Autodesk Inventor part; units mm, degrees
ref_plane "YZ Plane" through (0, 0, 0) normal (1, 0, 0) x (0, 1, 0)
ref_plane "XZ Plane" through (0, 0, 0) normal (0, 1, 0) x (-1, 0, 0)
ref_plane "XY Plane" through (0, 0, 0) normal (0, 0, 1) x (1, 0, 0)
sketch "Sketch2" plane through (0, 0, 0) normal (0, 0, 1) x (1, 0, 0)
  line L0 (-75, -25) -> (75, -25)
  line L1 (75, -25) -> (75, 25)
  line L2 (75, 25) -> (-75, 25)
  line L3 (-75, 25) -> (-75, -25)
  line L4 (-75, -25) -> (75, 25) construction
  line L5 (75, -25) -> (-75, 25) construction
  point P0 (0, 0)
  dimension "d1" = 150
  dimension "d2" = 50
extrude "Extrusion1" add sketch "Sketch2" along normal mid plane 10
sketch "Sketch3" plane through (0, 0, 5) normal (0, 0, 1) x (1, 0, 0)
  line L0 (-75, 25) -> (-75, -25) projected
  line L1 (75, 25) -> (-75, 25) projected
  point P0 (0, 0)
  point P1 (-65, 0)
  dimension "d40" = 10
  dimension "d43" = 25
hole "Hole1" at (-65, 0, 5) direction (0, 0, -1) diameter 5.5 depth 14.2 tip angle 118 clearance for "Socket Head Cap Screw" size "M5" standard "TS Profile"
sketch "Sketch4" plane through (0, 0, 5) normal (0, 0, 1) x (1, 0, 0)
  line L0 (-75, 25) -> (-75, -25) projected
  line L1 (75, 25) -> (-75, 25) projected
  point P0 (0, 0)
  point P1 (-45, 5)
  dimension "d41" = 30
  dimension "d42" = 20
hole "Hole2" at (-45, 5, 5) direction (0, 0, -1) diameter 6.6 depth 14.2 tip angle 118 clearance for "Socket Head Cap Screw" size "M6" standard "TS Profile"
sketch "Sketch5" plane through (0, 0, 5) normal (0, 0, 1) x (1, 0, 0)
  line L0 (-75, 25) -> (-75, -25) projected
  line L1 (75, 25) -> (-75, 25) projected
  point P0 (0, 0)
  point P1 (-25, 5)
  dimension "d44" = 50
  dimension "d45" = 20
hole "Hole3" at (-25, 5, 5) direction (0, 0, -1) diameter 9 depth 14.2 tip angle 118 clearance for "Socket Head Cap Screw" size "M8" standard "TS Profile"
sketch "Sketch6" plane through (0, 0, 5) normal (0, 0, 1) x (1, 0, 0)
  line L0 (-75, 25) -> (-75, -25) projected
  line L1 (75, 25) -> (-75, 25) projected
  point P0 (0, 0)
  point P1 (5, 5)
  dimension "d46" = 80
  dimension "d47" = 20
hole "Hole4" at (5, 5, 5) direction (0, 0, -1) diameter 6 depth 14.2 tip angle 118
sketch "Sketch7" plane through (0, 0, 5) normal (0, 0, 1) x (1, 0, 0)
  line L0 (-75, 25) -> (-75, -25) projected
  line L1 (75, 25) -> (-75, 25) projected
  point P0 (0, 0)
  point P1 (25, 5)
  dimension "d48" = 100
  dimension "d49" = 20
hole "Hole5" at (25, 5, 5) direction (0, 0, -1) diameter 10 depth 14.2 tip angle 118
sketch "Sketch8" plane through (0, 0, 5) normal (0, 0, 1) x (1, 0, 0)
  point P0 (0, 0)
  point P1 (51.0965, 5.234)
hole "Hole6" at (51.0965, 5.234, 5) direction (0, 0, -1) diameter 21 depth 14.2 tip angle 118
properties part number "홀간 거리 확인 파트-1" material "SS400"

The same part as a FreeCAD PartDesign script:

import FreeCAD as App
import Part
import Sketcher
Q = App.Units.Quantity


def add_polygon(sketch, points):
    """Adds a closed chain of lines whose ends are joined by coincident constraints."""
    first, n = sketch.GeometryCount, len(points)
    for a, b in zip(points, points[1:] + points[:1]):
        sketch.addGeometry(Part.LineSegment(App.Vector(*a, 0), App.Vector(*b, 0)), False)
    for i in range(n):
        sketch.addConstraint(Sketcher.Constraint("Coincident", first + i, 2, first + (i + 1) % n, 1))

doc = App.newDocument("Part")
body = doc.addObject("PartDesign::Body", "Body")

# Sketch on XY plane
sketch1 = body.newObject("Sketcher::SketchObject", "Sketch")
sketch1.AttachmentSupport = (doc.getObject("XY_Plane"), [""])
sketch1.MapMode = "FlatFace"
add_polygon(sketch1, [(-75, 25), (-75, -25), (75, -25), (75, 25)])  # lines 0-3
sketch1.addConstraint(Sketcher.Constraint("Vertical", 0))
sketch1.addConstraint(Sketcher.Constraint("Horizontal", 1))
sketch1.addConstraint(Sketcher.Constraint("Vertical", 2))
sketch1.addConstraint(Sketcher.Constraint("Horizontal", 3))
sketch1.addConstraint(Sketcher.Constraint("Symmetric", 0, 2, 2, 2, -1, 1))
sketch1.addConstraint(Sketcher.Constraint("DistanceX", 1, 1, 1, 2, Q("150 mm")))
sketch1.addConstraint(Sketcher.Constraint("DistanceY", 0, 2, 0, 1, Q("50 mm")))
pad1 = body.newObject("PartDesign::Pad", "Pad")
pad1.Profile = sketch1
pad1.Length = 10
pad1.Midplane = True

# Sketch on XY plane
sketch2 = body.newObject("Sketcher::SketchObject", "Sketch001")
sketch2.AttachmentSupport = (doc.getObject("XY_Plane"), [""])
sketch2.MapMode = "FlatFace"
sketch2.AttachmentOffset = App.Placement(App.Vector(0, 0, 5), App.Rotation())
sketch2.addGeometry(Part.Circle(App.Vector(-65, 0, 0), App.Vector(0, 0, 1), 2.8), False)
sketch2.addConstraint(Sketcher.Constraint("PointOnObject", 0, 3, -1))
sketch2.addConstraint(Sketcher.Constraint("Diameter", 0, Q("5.5 mm")))
sketch2.addConstraint(Sketcher.Constraint("DistanceX", 0, 3, -1, 1, Q("65 mm")))
doc.recompute()
hole = body.newObject("PartDesign::Hole", "Hole")
hole.Profile = sketch2
hole.ThreadType = "None"
hole.Diameter = 5.5
hole.DepthType = "Dimension"
hole.Depth = 14.2
hole.DrillPoint = "Angled"
hole.DrillPointAngle = 118

# Sketch on XY plane
sketch3 = body.newObject("Sketcher::SketchObject", "Sketch002")
sketch3.AttachmentSupport = (doc.getObject("XY_Plane"), [""])
sketch3.MapMode = "FlatFace"
sketch3.AttachmentOffset = App.Placement(App.Vector(0, 0, 5), App.Rotation())
sketch3.addGeometry(Part.Circle(App.Vector(-45, 5, 0), App.Vector(0, 0, 1), 3.3), False)
sketch3.addConstraint(Sketcher.Constraint("Diameter", 0, Q("6.6 mm")))
sketch3.addConstraint(Sketcher.Constraint("DistanceX", 0, 3, -1, 1, Q("45 mm")))
sketch3.addConstraint(Sketcher.Constraint("DistanceY", -1, 1, 0, 3, Q("5 mm")))
doc.recompute()
hole2 = body.newObject("PartDesign::Hole", "Hole001")
hole2.Profile = sketch3
hole2.ThreadType = "None"
hole2.Diameter = 6.6
hole2.DepthType = "Dimension"
hole2.Depth = 14.2
hole2.DrillPoint = "Angled"
hole2.DrillPointAngle = 118

# Sketch on XY plane
sketch4 = body.newObject("Sketcher::SketchObject", "Sketch003")
sketch4.AttachmentSupport = (doc.getObject("XY_Plane"), [""])
sketch4.MapMode = "FlatFace"
sketch4.AttachmentOffset = App.Placement(App.Vector(0, 0, 5), App.Rotation())
sketch4.addGeometry(Part.Circle(App.Vector(-25, 5, 0), App.Vector(0, 0, 1), 4.5), False)
sketch4.addConstraint(Sketcher.Constraint("Diameter", 0, Q("9 mm")))
sketch4.addConstraint(Sketcher.Constraint("DistanceX", 0, 3, -1, 1, Q("25 mm")))
sketch4.addConstraint(Sketcher.Constraint("DistanceY", -1, 1, 0, 3, Q("5 mm")))
doc.recompute()
hole3 = body.newObject("PartDesign::Hole", "Hole002")
hole3.Profile = sketch4
hole3.ThreadType = "None"
hole3.Diameter = 9
hole3.DepthType = "Dimension"
hole3.Depth = 14.2
hole3.DrillPoint = "Angled"
hole3.DrillPointAngle = 118

# Sketch on XY plane
sketch5 = body.newObject("Sketcher::SketchObject", "Sketch004")
sketch5.AttachmentSupport = (doc.getObject("XY_Plane"), [""])
sketch5.MapMode = "FlatFace"
sketch5.AttachmentOffset = App.Placement(App.Vector(0, 0, 5), App.Rotation())
sketch5.addGeometry(Part.Circle(App.Vector(5, 5, 0), App.Vector(0, 0, 1), 3), False)
sketch5.addConstraint(Sketcher.Constraint("Diameter", 0, Q("6 mm")))
sketch5.addConstraint(Sketcher.Constraint("DistanceX", -1, 1, 0, 3, Q("5 mm")))
sketch5.addConstraint(Sketcher.Constraint("DistanceY", -1, 1, 0, 3, Q("5 mm")))
doc.recompute()
hole4 = body.newObject("PartDesign::Hole", "Hole003")
hole4.Profile = sketch5
hole4.ThreadType = "None"
hole4.Diameter = 6
hole4.DepthType = "Dimension"
hole4.Depth = 14.2
hole4.DrillPoint = "Angled"
hole4.DrillPointAngle = 118

# Sketch on XY plane
sketch6 = body.newObject("Sketcher::SketchObject", "Sketch005")
sketch6.AttachmentSupport = (doc.getObject("XY_Plane"), [""])
sketch6.MapMode = "FlatFace"
sketch6.AttachmentOffset = App.Placement(App.Vector(0, 0, 5), App.Rotation())
sketch6.addGeometry(Part.Circle(App.Vector(25, 5, 0), App.Vector(0, 0, 1), 5), False)
sketch6.addConstraint(Sketcher.Constraint("Diameter", 0, Q("10 mm")))
sketch6.addConstraint(Sketcher.Constraint("DistanceX", -1, 1, 0, 3, Q("25 mm")))
sketch6.addConstraint(Sketcher.Constraint("DistanceY", -1, 1, 0, 3, Q("5 mm")))
doc.recompute()
hole5 = body.newObject("PartDesign::Hole", "Hole004")
hole5.Profile = sketch6
hole5.ThreadType = "None"
hole5.Diameter = 10
hole5.DepthType = "Dimension"
hole5.Depth = 14.2
hole5.DrillPoint = "Angled"
hole5.DrillPointAngle = 118

# Sketch on XY plane
sketch7 = body.newObject("Sketcher::SketchObject", "Sketch006")
sketch7.AttachmentSupport = (doc.getObject("XY_Plane"), [""])
sketch7.MapMode = "FlatFace"
sketch7.AttachmentOffset = App.Placement(App.Vector(0, 0, 5), App.Rotation())
sketch7.addGeometry(Part.Circle(App.Vector(51, 5, 0), App.Vector(0, 0, 1), 10), False)
sketch7.addConstraint(Sketcher.Constraint("Diameter", 0, Q("21 mm")))
sketch7.addConstraint(Sketcher.Constraint("DistanceY", -1, 1, 0, 3, Q("5.234 mm")))
sketch7.addConstraint(Sketcher.Constraint("DistanceX", -1, 1, 0, 3, Q("51.0965 mm")))
doc.recompute()
hole6 = body.newObject("PartDesign::Hole", "Hole005")
hole6.Profile = sketch7
hole6.ThreadType = "None"
hole6.Diameter = 21
hole6.DepthType = "Dimension"
hole6.Depth = 14.2
hole6.DrillPoint = "Angled"
hole6.DrillPointAngle = 118

doc.recompute()
